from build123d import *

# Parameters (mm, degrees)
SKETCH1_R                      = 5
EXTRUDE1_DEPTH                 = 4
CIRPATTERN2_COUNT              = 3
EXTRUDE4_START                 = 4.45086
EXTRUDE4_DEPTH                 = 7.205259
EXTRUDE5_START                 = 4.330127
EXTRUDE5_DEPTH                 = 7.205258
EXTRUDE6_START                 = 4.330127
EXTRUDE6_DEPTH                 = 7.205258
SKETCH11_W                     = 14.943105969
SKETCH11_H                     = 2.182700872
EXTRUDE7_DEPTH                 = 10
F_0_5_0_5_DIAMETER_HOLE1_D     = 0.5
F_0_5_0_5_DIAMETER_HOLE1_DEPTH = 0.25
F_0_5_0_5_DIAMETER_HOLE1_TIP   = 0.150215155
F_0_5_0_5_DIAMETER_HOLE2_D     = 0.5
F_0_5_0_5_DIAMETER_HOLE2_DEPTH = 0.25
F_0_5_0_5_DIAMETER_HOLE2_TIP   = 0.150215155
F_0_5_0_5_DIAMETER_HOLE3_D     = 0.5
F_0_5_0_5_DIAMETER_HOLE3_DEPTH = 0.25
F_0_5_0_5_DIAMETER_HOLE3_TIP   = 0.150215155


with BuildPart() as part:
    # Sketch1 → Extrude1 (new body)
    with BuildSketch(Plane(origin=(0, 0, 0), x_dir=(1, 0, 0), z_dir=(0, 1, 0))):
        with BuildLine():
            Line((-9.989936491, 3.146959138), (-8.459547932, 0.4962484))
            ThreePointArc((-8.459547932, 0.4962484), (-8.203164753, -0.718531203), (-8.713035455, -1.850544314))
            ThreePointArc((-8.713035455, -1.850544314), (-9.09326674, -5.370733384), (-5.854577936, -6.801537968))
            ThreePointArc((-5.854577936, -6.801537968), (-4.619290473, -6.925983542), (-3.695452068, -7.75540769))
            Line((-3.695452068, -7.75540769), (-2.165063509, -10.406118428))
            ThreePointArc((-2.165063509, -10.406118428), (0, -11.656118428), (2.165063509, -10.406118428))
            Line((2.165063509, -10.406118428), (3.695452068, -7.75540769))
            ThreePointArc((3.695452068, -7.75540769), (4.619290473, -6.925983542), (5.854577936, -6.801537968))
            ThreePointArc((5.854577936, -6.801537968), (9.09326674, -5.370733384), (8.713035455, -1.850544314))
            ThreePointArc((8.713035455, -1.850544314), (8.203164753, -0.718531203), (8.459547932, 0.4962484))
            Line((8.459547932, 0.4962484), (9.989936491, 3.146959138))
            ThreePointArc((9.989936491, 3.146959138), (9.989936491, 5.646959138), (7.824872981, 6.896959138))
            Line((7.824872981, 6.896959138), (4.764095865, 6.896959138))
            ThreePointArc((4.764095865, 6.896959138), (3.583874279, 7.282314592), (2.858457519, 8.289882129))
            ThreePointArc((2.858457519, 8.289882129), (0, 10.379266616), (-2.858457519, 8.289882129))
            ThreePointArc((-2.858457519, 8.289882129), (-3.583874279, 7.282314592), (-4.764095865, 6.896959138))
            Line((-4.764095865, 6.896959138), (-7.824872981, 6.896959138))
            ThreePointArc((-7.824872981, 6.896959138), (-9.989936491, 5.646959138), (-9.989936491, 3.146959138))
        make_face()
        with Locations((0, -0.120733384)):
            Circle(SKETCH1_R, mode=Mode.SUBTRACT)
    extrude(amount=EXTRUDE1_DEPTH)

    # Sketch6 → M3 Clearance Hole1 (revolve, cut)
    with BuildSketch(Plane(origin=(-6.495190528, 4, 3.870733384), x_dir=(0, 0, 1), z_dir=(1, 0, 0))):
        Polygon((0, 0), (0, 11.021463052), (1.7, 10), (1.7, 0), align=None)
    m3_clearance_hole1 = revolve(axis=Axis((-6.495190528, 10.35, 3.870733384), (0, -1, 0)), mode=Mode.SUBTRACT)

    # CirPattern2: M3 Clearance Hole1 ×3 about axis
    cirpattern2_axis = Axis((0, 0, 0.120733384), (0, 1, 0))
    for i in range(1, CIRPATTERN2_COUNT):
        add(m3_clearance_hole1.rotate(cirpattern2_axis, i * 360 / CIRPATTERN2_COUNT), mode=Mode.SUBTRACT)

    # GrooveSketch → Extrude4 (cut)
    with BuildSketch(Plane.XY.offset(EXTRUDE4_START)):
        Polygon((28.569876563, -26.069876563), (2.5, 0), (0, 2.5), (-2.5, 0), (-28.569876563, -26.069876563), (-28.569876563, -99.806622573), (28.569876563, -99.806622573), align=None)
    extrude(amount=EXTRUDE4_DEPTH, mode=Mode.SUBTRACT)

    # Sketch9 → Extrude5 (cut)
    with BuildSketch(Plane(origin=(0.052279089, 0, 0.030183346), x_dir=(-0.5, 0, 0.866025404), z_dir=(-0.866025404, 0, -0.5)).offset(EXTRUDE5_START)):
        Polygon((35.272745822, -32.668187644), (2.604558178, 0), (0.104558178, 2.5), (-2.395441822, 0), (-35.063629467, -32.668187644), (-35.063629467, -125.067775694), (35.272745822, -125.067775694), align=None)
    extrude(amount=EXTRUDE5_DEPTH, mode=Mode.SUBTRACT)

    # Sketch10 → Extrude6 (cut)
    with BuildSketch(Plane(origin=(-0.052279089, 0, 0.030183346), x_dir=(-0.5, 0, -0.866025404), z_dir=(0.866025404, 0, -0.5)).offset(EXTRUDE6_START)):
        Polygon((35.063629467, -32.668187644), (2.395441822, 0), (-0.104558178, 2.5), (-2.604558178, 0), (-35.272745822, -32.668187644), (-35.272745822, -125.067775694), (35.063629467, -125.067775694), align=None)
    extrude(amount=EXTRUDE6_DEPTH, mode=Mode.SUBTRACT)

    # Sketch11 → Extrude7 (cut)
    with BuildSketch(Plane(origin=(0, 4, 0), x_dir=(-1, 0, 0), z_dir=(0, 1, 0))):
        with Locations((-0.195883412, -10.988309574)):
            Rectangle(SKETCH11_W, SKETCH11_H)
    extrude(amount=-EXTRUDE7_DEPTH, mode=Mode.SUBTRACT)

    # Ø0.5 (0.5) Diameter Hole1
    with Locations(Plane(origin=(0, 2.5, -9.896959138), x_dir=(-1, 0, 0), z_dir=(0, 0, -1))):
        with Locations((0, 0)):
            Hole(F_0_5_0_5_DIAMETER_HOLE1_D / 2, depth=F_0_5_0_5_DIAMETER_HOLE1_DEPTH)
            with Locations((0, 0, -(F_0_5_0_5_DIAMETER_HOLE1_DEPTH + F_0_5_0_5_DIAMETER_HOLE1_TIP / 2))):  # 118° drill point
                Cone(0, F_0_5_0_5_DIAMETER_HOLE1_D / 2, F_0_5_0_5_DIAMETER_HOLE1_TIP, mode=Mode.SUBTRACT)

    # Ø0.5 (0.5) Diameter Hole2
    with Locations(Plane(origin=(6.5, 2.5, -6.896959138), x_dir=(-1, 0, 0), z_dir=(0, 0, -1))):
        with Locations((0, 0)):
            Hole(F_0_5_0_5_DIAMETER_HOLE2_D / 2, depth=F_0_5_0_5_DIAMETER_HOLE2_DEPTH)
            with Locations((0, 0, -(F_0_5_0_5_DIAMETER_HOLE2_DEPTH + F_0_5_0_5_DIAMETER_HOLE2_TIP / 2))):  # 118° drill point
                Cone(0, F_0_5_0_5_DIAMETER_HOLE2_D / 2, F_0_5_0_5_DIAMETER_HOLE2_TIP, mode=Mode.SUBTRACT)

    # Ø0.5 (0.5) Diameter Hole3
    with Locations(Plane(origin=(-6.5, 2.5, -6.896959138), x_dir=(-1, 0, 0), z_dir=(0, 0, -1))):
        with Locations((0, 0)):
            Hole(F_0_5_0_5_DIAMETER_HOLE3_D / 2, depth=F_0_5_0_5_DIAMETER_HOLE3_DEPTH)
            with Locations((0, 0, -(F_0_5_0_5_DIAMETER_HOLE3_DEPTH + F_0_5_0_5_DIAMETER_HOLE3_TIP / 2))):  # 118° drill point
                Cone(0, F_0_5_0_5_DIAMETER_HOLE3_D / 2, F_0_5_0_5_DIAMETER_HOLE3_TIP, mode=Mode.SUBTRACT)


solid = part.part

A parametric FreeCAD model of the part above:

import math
import FreeCAD as App
import Part
import Sketcher
Q = App.Units.Quantity


def add_polygon(sketch, points):
    """Adds a closed chain of lines whose ends are joined by coincident constraints."""
    first, n = sketch.GeometryCount, len(points)
    for a, b in zip(points, points[1:] + points[:1]):
        sketch.addGeometry(Part.LineSegment(App.Vector(*a, 0), App.Vector(*b, 0)), False)
    for i in range(n):
        sketch.addConstraint(Sketcher.Constraint("Coincident", first + i, 2, first + (i + 1) % n, 1))

doc = App.newDocument("Part")
body = doc.addObject("PartDesign::Body", "Body")

# Sketch on XZ plane
sketch1 = body.newObject("Sketcher::SketchObject", "Sketch")
sketch1.AttachmentSupport = (doc.getObject("XZ_Plane"), [""])
sketch1.MapMode = "FlatFace"
sketch1.addGeometry(Part.LineSegment(App.Vector(-9.989936, -3.146959, 0), App.Vector(-8.459548, -0.496248, 0)), False)
sketch1.addGeometry(Part.ArcOfCircle(Part.Circle(App.Vector(-10.191599, 0.503752, 0), App.Vector(0, 0, 1), 2), math.radians(-30), math.radians(42.329742)), False)
sketch1.addGeometry(Part.ArcOfCircle(Part.Circle(App.Vector(-6.495191, 3.870733, 0), App.Vector(0, 0, 1), 3), math.radians(77.670258), math.radians(222.329742)), False)
sketch1.addGeometry(Part.ArcOfCircle(Part.Circle(App.Vector(-5.427503, 8.755408, 0), App.Vector(0, 0, 1), 2), math.radians(-102.329742), math.radians(-30)), False)
sketch1.addGeometry(Part.LineSegment(App.Vector(-3.695452, 7.755408, 0), App.Vector(-2.165064, 10.406118, 0)), False)
sketch1.addGeometry(Part.ArcOfCircle(Part.Circle(App.Vector(0, 9.156118, 0), App.Vector(0, 0, 1), 2.5), math.radians(30), math.radians(150)), False)
sketch1.addGeometry(Part.LineSegment(App.Vector(2.165064, 10.406118, 0), App.Vector(3.695452, 7.755408, 0)), False)
sketch1.addGeometry(Part.ArcOfCircle(Part.Circle(App.Vector(5.427503, 8.755408, 0), App.Vector(0, 0, 1), 2), math.radians(-150), math.radians(-77.670258)), False)
sketch1.addGeometry(Part.ArcOfCircle(Part.Circle(App.Vector(6.495191, 3.870733, 0), App.Vector(0, 0, 1), 3), math.radians(-42.329742), math.radians(102.329742)), False)
sketch1.addGeometry(Part.ArcOfCircle(Part.Circle(App.Vector(10.191599, 0.503752, 0), App.Vector(0, 0, 1), 2), math.radians(137.670258), math.radians(210)), False)
sketch1.addGeometry(Part.LineSegment(App.Vector(8.459548, -0.496248, 0), App.Vector(9.989936, -3.146959, 0)), False)
sketch1.addGeometry(Part.ArcOfCircle(Part.Circle(App.Vector(7.824873, -4.396959, 0), App.Vector(0, 0, 1), 2.5), math.radians(-90), math.radians(30)), False)
sketch1.addGeometry(Part.LineSegment(App.Vector(7.824873, -6.896959, 0), App.Vector(4.764096, -6.896959, 0)), False)
sketch1.addGeometry(Part.ArcOfCircle(Part.Circle(App.Vector(4.764096, -8.896959, 0), App.Vector(0, 0, 1), 2), math.radians(90), math.radians(162.329742)), False)
sketch1.addGeometry(Part.ArcOfCircle(Part.Circle(App.Vector(0, -7.379267, 0), App.Vector(0, 0, 1), 3), math.radians(-162.329742), math.radians(-17.670258)), False)
sketch1.addGeometry(Part.ArcOfCircle(Part.Circle(App.Vector(-4.764096, -8.896959, 0), App.Vector(0, 0, 1), 2), math.radians(17.670258), math.radians(90)), False)
sketch1.addGeometry(Part.LineSegment(App.Vector(-4.764096, -6.896959, 0), App.Vector(-7.824873, -6.896959, 0)), False)
sketch1.addGeometry(Part.ArcOfCircle(Part.Circle(App.Vector(-7.824873, -4.396959, 0), App.Vector(0, 0, 1), 2.5), math.radians(150), math.radians(270)), False)
sketch1.addGeometry(Part.Circle(App.Vector(0, 0.120733, 0), App.Vector(0, 0, 1), 5), False)
sketch1.addConstraint(Sketcher.Constraint("Tangent", 0, 2, 1, 1))
sketch1.addConstraint(Sketcher.Constraint("Tangent", 1, 2, 2, 2))
sketch1.addConstraint(Sketcher.Constraint("Tangent", 2, 1, 3, 1))
sketch1.addConstraint(Sketcher.Constraint("Tangent", 3, 2, 4, 1))
sketch1.addConstraint(Sketcher.Constraint("Tangent", 4, 2, 5, 2))
sketch1.addConstraint(Sketcher.Constraint("Tangent", 5, 1, 6, 1))
sketch1.addConstraint(Sketcher.Constraint("Tangent", 6, 2, 7, 1))
sketch1.addConstraint(Sketcher.Constraint("Tangent", 7, 2, 8, 2))
sketch1.addConstraint(Sketcher.Constraint("Tangent", 8, 1, 9, 1))
sketch1.addConstraint(Sketcher.Constraint("Tangent", 9, 2, 10, 1))
sketch1.addConstraint(Sketcher.Constraint("Tangent", 10, 2, 11, 2))
sketch1.addConstraint(Sketcher.Constraint("Tangent", 11, 1, 12, 1))
sketch1.addConstraint(Sketcher.Constraint("Tangent", 12, 2, 13, 1))
sketch1.addConstraint(Sketcher.Constraint("Tangent", 13, 2, 14, 2))
sketch1.addConstraint(Sketcher.Constraint("Tangent", 14, 1, 15, 1))
sketch1.addConstraint(Sketcher.Constraint("Tangent", 15, 2, 16, 1))
sketch1.addConstraint(Sketcher.Constraint("Tangent", 16, 2, 17, 2))
sketch1.addConstraint(Sketcher.Constraint("Tangent", 17, 1, 0, 1))
sketch1.addConstraint(Sketcher.Constraint("Horizontal", 12))
sketch1.addConstraint(Sketcher.Constraint("Horizontal", 16))
sketch1.addConstraint(Sketcher.Constraint("Equal", 1, 3))
sketch1.addConstraint(Sketcher.Constraint("Equal", 3, 7))
sketch1.addConstraint(Sketcher.Constraint("Equal", 2, 8))
sketch1.addConstraint(Sketcher.Constraint("Equal", 7, 9))
sketch1.addConstraint(Sketcher.Constraint("Equal", 5, 11))
sketch1.addConstraint(Sketcher.Constraint("Equal", 9, 13))
sketch1.addConstraint(Sketcher.Constraint("Equal", 8, 14))
sketch1.addConstraint(Sketcher.Constraint("Equal", 13, 15))
sketch1.addConstraint(Sketcher.Constraint("Equal", 11, 17))
sketch1.addConstraint(Sketcher.Constraint("Symmetric", 3, 3, 7, 3, -2))
sketch1.addConstraint(Sketcher.Constraint("Symmetric", 1, 3, 9, 3, -2))
sketch1.addConstraint(Sketcher.Constraint("Symmetric", 13, 3, 15, 3, -2))
sketch1.addConstraint(Sketcher.Constraint("PointOnObject", 5, 3, -2))
sketch1.addConstraint(Sketcher.Constraint("PointOnObject", 18, 3, -2))
sketch1.addConstraint(Sketcher.Constraint("Parallel", 0, 4))
sketch1.addConstraint(Sketcher.Constraint("Parallel", 6, 10))
sketch1.addConstraint(Sketcher.Constraint("Equal", 0, 4))
sketch1.addConstraint(Sketcher.Constraint("Diameter", 18, 10.0))
sketch1.addConstraint(Sketcher.Constraint("Radius", 1, 2.0))
sketch1.addConstraint(Sketcher.Constraint("Radius", 2, 3.0))
sketch1.addConstraint(Sketcher.Constraint("Radius", 5, 2.5))
sketch1.addConstraint(Sketcher.Constraint("Angle", 0, Q("60 deg")))
sketch1.addConstraint(Sketcher.Constraint("DistanceY", 14, 3, 18, 3, 7.5))
sketch1.addConstraint(Sketcher.Constraint("DistanceY", 14, 3, 2, 3, 11.25))
sketch1.addConstraint(Sketcher.Constraint("DistanceX", 1, 3, -1, 1, 10.191599))
sketch1.addConstraint(Sketcher.Constraint("DistanceX", 1, 3, 7, 3, 15.619102))
sketch1.addConstraint(Sketcher.Constraint("DistanceX", 8, 1, 10, 2, 1.276901))
sketch1.addConstraint(Sketcher.Constraint("DistanceY", -1, 1, 1, 3, 0.503752))
pad1 = body.newObject("PartDesign::Pad", "Pad")
pad1.Profile = sketch1
pad1.Length = 4
pad1.Reversed = True

# Sketch on YZ plane
sketch2 = body.newObject("Sketcher::SketchObject", "Sketch001")
sketch2.AttachmentSupport = (doc.getObject("YZ_Plane"), [""])
sketch2.MapMode = "FlatFace"
sketch2.AttachmentOffset = App.Placement(App.Vector(0, 0, -6.495191), App.Rotation())
add_polygon(sketch2, [(-7.021463, 3.870733), (4, 3.870733), (4, 5.570733), (-6, 5.570733)])  # lines 0-3
sketch2.addGeometry(Part.LineSegment(App.Vector(4, 3.870733, 0), App.Vector(-7.021463, 3.870733, 0)), True)  # axis
sketch2.addConstraint(Sketcher.Constraint("Horizontal", 0))
sketch2.addConstraint(Sketcher.Constraint("Vertical", 1))
sketch2.addConstraint(Sketcher.Constraint("Horizontal", 2))
sketch2.addConstraint(Sketcher.Constraint("Horizontal", 4))
sketch2.addConstraint(Sketcher.Constraint("Coincident", 4, 1, 0, 2))
sketch2.addConstraint(Sketcher.Constraint("Equal", 0, 4))
sketch2.addConstraint(Sketcher.Constraint("DistanceX", 2, 2, 2, 1, 10.0))
sketch2.addConstraint(Sketcher.Constraint("Angle", 3, Q("-121 deg")))
sketch2.addConstraint(Sketcher.Constraint("DistanceY", 1, 1, 1, 2, 1.7))
sketch2.addConstraint(Sketcher.Constraint("DistanceX", -1, 1, 0, 2, 4.0))
sketch2.addConstraint(Sketcher.Constraint("DistanceY", -1, 1, 0, 2, 3.870733))
groove = body.newObject("PartDesign::Groove", "Groove")
groove.Profile = sketch2
groove.ReferenceAxis = (sketch2, ["Axis0"])
groove.Angle = 360
doc.recompute()

datumline = body.newObject("PartDesign::Line", "DatumLine")
datumline.Placement = App.Placement(App.Vector(0, 0, 0.120733), App.Rotation(App.Vector(0, 0, 1), App.Vector(0, 1, 0)))
polarpattern = body.newObject("PartDesign::PolarPattern", "PolarPattern")
polarpattern.Originals = [groove]
polarpattern.Axis = (datumline, [""])
polarpattern.Angle = 360
polarpattern.Occurrences = 3
body.Tip = polarpattern

# Sketch on XY plane
sketch3 = body.newObject("Sketcher::SketchObject", "Sketch002")
sketch3.AttachmentSupport = (doc.getObject("XY_Plane"), [""])
sketch3.MapMode = "FlatFace"
sketch3.AttachmentOffset = App.Placement(App.Vector(0, 0, 4.45086), App.Rotation())
add_polygon(sketch3, [(28.569877, -26.069877), (0, 2.5), (-28.569877, -26.069877), (-28.569877, -99.806623), (28.569877, -99.806623)])  # lines 0-4
sketch3.addConstraint(Sketcher.Constraint("Vertical", 2))
sketch3.addConstraint(Sketcher.Constraint("Horizontal", 3))
sketch3.addConstraint(Sketcher.Constraint("Vertical", 4))
sketch3.addConstraint(Sketcher.Constraint("Symmetric", 1, 2, 4, 2, -2))
sketch3.addConstraint(Sketcher.Constraint("PointOnObject", 0, 2, -2))
sketch3.addConstraint(Sketcher.Constraint("Perpendicular", 0, 1))
sketch3.addConstraint(Sketcher.Constraint("DistanceY", -1, 1, 0, 2, 2.5))
sketch3.addConstraint(Sketcher.Constraint("DistanceX", 3, 1, 3, 2, 57.139753))
sketch3.addConstraint(Sketcher.Constraint("DistanceY", 2, 2, 2, 1, 73.736746))
pocket1 = body.newObject("PartDesign::Pocket", "Pocket")
pocket1.Profile = sketch3
pocket1.Length = 7.205259
pocket1.Reversed = True

# Sketch on an angled plane
sketch4 = body.newObject("Sketcher::SketchObject", "Sketch003")
sketch4.Placement = App.Placement(App.Vector(-3.697721, 0, -2.13488), App.Rotation(App.Vector(-0.5, 0, 0.866025404), App.Vector(0, 1, 0), App.Vector(-0.866025404, 0, -0.5), "ZXY"))
add_polygon(sketch4, [(35.272746, -32.668188), (0.104558, 2.5), (-2.395442, 0), (-35.063629, -32.668188), (-35.063629, -125.067776), (35.272746, -125.067776)])  # lines 0-5
sketch4.addConstraint(Sketcher.Constraint("Vertical", 3))
sketch4.addConstraint(Sketcher.Constraint("Horizontal", 4))
sketch4.addConstraint(Sketcher.Constraint("Vertical", 5))
sketch4.addConstraint(Sketcher.Constraint("PointOnObject", 1, 2, -1))
sketch4.addConstraint(Sketcher.Constraint("Perpendicular", 0, 1))
sketch4.addConstraint(Sketcher.Constraint("Parallel", 1, 2))
sketch4.addConstraint(Sketcher.Constraint("Horizontal", 2, 2, 5, 2))
sketch4.addConstraint(Sketcher.Constraint("Angle", 0, Q("135 deg")))
sketch4.addConstraint(Sketcher.Constraint("DistanceY", -1, 1, 0, 2, 2.5))
sketch4.addConstraint(Sketcher.Constraint("DistanceY", 3, 2, 3, 1, 92.399588))
sketch4.addConstraint(Sketcher.Constraint("DistanceX", 4, 1, 4, 2, 70.336375))
sketch4.addConstraint(Sketcher.Constraint("DistanceX", -1, 1, 0, 2, 0.104558))
pocket2 = body.newObject("PartDesign::Pocket", "Pocket001")
pocket2.Profile = sketch4
pocket2.Length = 7.205258
pocket2.Reversed = True

# Sketch on an angled plane
sketch5 = body.newObject("Sketcher::SketchObject", "Sketch004")
sketch5.Placement = App.Placement(App.Vector(3.697721, 0, -2.13488), App.Rotation(App.Vector(-0.5, 0, -0.866025404), App.Vector(0, 1, 0), App.Vector(0.866025404, 0, -0.5), "ZXY"))
add_polygon(sketch5, [(35.063629, -32.668188), (2.395442, 0), (-0.104558, 2.5), (-35.272746, -32.668188), (-35.272746, -125.067776), (35.063629, -125.067776)])  # lines 0-5
sketch5.addConstraint(Sketcher.Constraint("Vertical", 3))
sketch5.addConstraint(Sketcher.Constraint("Horizontal", 4))
sketch5.addConstraint(Sketcher.Constraint("Vertical", 5))
sketch5.addConstraint(Sketcher.Constraint("PointOnObject", 0, 2, -1))
sketch5.addConstraint(Sketcher.Constraint("Parallel", 0, 1))
sketch5.addConstraint(Sketcher.Constraint("Perpendicular", 1, 2))
sketch5.addConstraint(Sketcher.Constraint("Horizontal", 2, 2, 5, 2))
sketch5.addConstraint(Sketcher.Constraint("Angle", 0, Q("135 deg")))
sketch5.addConstraint(Sketcher.Constraint("DistanceY", -1, 1, 1, 2, 2.5))
sketch5.addConstraint(Sketcher.Constraint("DistanceY", 3, 2, 3, 1, 92.399588))
sketch5.addConstraint(Sketcher.Constraint("DistanceX", 4, 1, 4, 2, 70.336375))
sketch5.addConstraint(Sketcher.Constraint("DistanceX", -1, 1, 0, 2, 2.395442))
pocket3 = body.newObject("PartDesign::Pocket", "Pocket002")
pocket3.Profile = sketch5
pocket3.Length = 7.205258
pocket3.Reversed = True

# Sketch on XZ plane
sketch6 = body.newObject("Sketcher::SketchObject", "Sketch005")
sketch6.AttachmentSupport = (doc.getObject("XZ_Plane"), [""])
sketch6.MapMode = "FlatFace"
sketch6.AttachmentOffset = App.Placement(App.Vector(0, 0, -4), App.Rotation())
add_polygon(sketch6, [(7.667436, -9.896959), (7.667436, -12.07966), (-7.27567, -12.07966), (-7.27567, -9.896959)])  # lines 0-3
sketch6.addConstraint(Sketcher.Constraint("Vertical", 0))
sketch6.addConstraint(Sketcher.Constraint("Horizontal", 1))
sketch6.addConstraint(Sketcher.Constraint("Vertical", 2))
sketch6.addConstraint(Sketcher.Constraint("Horizontal", 3))
sketch6.addConstraint(Sketcher.Constraint("DistanceY", 0, 2, 0, 1, 2.182701))
sketch6.addConstraint(Sketcher.Constraint("DistanceX", 1, 2, 1, 1, 14.943106))
sketch6.addConstraint(Sketcher.Constraint("DistanceY", 0, 2, -1, 1, 12.07966))
sketch6.addConstraint(Sketcher.Constraint("DistanceX", 1, 2, -1, 1, 7.27567))
pocket4 = body.newObject("PartDesign::Pocket", "Pocket003")
pocket4.Profile = sketch6
pocket4.Length = 10
pocket4.Reversed = True

# Sketch on XY plane
sketch7 = body.newObject("Sketcher::SketchObject", "Sketch006")
sketch7.AttachmentSupport = (doc.getObject("XY_Plane"), [""])
sketch7.MapMode = "FlatFace"
sketch7.AttachmentOffset = App.Placement(App.Vector(0, 0, -9.896959), App.Rotation())
sketch7.addGeometry(Part.Circle(App.Vector(0, 2.5, 0), App.Vector(0, 0, 1), 0.25), False)
sketch7.addConstraint(Sketcher.Constraint("PointOnObject", 0, 3, -2))
sketch7.addConstraint(Sketcher.Constraint("Diameter", 0, 0.5))
sketch7.addConstraint(Sketcher.Constraint("DistanceY", -1, 1, 0, 3, 2.5))
doc.recompute()
hole = body.newObject("PartDesign::Hole", "Hole")
hole.Profile = sketch7
hole.ThreadType = "None"
hole.Diameter = 0.5
hole.DepthType = "Dimension"
hole.Depth = 0.25
hole.DrillPoint = "Angled"
hole.DrillPointAngle = 118
hole.Reversed = True

# Sketch on XY plane
sketch8 = body.newObject("Sketcher::SketchObject", "Sketch007")
sketch8.AttachmentSupport = (doc.getObject("XY_Plane"), [""])
sketch8.MapMode = "FlatFace"
sketch8.AttachmentOffset = App.Placement(App.Vector(0, 0, -6.896959), App.Rotation())
sketch8.addGeometry(Part.Circle(App.Vector(6.5, 2.5, 0), App.Vector(0, 0, 1), 0.25), False)
sketch8.addConstraint(Sketcher.Constraint("Diameter", 0, 0.5))
sketch8.addConstraint(Sketcher.Constraint("DistanceX", -1, 1, 0, 3, 6.5))
sketch8.addConstraint(Sketcher.Constraint("DistanceY", -1, 1, 0, 3, 2.5))
doc.recompute()
hole2 = body.newObject("PartDesign::Hole", "Hole001")
hole2.Profile = sketch8
hole2.ThreadType = "None"
hole2.Diameter = 0.5
hole2.DepthType = "Dimension"
hole2.Depth = 0.25
hole2.DrillPoint = "Angled"
hole2.DrillPointAngle = 118
hole2.Reversed = True

# Sketch on XY plane
sketch9 = body.newObject("Sketcher::SketchObject", "Sketch008")
sketch9.AttachmentSupport = (doc.getObject("XY_Plane"), [""])
sketch9.MapMode = "FlatFace"
sketch9.AttachmentOffset = App.Placement(App.Vector(0, 0, -6.896959), App.Rotation())
sketch9.addGeometry(Part.Circle(App.Vector(-6.5, 2.5, 0), App.Vector(0, 0, 1), 0.25), False)
sketch9.addConstraint(Sketcher.Constraint("Diameter", 0, 0.5))
sketch9.addConstraint(Sketcher.Constraint("DistanceX", 0, 3, -1, 1, 6.5))
sketch9.addConstraint(Sketcher.Constraint("DistanceY", -1, 1, 0, 3, 2.5))
doc.recompute()
hole3 = body.newObject("PartDesign::Hole", "Hole002")
hole3.Profile = sketch9
hole3.ThreadType = "None"
hole3.Diameter = 0.5
hole3.DepthType = "Dimension"
hole3.Depth = 0.25
hole3.DrillPoint = "Angled"
hole3.DrillPointAngle = 118
hole3.Reversed = True

doc.recompute()
